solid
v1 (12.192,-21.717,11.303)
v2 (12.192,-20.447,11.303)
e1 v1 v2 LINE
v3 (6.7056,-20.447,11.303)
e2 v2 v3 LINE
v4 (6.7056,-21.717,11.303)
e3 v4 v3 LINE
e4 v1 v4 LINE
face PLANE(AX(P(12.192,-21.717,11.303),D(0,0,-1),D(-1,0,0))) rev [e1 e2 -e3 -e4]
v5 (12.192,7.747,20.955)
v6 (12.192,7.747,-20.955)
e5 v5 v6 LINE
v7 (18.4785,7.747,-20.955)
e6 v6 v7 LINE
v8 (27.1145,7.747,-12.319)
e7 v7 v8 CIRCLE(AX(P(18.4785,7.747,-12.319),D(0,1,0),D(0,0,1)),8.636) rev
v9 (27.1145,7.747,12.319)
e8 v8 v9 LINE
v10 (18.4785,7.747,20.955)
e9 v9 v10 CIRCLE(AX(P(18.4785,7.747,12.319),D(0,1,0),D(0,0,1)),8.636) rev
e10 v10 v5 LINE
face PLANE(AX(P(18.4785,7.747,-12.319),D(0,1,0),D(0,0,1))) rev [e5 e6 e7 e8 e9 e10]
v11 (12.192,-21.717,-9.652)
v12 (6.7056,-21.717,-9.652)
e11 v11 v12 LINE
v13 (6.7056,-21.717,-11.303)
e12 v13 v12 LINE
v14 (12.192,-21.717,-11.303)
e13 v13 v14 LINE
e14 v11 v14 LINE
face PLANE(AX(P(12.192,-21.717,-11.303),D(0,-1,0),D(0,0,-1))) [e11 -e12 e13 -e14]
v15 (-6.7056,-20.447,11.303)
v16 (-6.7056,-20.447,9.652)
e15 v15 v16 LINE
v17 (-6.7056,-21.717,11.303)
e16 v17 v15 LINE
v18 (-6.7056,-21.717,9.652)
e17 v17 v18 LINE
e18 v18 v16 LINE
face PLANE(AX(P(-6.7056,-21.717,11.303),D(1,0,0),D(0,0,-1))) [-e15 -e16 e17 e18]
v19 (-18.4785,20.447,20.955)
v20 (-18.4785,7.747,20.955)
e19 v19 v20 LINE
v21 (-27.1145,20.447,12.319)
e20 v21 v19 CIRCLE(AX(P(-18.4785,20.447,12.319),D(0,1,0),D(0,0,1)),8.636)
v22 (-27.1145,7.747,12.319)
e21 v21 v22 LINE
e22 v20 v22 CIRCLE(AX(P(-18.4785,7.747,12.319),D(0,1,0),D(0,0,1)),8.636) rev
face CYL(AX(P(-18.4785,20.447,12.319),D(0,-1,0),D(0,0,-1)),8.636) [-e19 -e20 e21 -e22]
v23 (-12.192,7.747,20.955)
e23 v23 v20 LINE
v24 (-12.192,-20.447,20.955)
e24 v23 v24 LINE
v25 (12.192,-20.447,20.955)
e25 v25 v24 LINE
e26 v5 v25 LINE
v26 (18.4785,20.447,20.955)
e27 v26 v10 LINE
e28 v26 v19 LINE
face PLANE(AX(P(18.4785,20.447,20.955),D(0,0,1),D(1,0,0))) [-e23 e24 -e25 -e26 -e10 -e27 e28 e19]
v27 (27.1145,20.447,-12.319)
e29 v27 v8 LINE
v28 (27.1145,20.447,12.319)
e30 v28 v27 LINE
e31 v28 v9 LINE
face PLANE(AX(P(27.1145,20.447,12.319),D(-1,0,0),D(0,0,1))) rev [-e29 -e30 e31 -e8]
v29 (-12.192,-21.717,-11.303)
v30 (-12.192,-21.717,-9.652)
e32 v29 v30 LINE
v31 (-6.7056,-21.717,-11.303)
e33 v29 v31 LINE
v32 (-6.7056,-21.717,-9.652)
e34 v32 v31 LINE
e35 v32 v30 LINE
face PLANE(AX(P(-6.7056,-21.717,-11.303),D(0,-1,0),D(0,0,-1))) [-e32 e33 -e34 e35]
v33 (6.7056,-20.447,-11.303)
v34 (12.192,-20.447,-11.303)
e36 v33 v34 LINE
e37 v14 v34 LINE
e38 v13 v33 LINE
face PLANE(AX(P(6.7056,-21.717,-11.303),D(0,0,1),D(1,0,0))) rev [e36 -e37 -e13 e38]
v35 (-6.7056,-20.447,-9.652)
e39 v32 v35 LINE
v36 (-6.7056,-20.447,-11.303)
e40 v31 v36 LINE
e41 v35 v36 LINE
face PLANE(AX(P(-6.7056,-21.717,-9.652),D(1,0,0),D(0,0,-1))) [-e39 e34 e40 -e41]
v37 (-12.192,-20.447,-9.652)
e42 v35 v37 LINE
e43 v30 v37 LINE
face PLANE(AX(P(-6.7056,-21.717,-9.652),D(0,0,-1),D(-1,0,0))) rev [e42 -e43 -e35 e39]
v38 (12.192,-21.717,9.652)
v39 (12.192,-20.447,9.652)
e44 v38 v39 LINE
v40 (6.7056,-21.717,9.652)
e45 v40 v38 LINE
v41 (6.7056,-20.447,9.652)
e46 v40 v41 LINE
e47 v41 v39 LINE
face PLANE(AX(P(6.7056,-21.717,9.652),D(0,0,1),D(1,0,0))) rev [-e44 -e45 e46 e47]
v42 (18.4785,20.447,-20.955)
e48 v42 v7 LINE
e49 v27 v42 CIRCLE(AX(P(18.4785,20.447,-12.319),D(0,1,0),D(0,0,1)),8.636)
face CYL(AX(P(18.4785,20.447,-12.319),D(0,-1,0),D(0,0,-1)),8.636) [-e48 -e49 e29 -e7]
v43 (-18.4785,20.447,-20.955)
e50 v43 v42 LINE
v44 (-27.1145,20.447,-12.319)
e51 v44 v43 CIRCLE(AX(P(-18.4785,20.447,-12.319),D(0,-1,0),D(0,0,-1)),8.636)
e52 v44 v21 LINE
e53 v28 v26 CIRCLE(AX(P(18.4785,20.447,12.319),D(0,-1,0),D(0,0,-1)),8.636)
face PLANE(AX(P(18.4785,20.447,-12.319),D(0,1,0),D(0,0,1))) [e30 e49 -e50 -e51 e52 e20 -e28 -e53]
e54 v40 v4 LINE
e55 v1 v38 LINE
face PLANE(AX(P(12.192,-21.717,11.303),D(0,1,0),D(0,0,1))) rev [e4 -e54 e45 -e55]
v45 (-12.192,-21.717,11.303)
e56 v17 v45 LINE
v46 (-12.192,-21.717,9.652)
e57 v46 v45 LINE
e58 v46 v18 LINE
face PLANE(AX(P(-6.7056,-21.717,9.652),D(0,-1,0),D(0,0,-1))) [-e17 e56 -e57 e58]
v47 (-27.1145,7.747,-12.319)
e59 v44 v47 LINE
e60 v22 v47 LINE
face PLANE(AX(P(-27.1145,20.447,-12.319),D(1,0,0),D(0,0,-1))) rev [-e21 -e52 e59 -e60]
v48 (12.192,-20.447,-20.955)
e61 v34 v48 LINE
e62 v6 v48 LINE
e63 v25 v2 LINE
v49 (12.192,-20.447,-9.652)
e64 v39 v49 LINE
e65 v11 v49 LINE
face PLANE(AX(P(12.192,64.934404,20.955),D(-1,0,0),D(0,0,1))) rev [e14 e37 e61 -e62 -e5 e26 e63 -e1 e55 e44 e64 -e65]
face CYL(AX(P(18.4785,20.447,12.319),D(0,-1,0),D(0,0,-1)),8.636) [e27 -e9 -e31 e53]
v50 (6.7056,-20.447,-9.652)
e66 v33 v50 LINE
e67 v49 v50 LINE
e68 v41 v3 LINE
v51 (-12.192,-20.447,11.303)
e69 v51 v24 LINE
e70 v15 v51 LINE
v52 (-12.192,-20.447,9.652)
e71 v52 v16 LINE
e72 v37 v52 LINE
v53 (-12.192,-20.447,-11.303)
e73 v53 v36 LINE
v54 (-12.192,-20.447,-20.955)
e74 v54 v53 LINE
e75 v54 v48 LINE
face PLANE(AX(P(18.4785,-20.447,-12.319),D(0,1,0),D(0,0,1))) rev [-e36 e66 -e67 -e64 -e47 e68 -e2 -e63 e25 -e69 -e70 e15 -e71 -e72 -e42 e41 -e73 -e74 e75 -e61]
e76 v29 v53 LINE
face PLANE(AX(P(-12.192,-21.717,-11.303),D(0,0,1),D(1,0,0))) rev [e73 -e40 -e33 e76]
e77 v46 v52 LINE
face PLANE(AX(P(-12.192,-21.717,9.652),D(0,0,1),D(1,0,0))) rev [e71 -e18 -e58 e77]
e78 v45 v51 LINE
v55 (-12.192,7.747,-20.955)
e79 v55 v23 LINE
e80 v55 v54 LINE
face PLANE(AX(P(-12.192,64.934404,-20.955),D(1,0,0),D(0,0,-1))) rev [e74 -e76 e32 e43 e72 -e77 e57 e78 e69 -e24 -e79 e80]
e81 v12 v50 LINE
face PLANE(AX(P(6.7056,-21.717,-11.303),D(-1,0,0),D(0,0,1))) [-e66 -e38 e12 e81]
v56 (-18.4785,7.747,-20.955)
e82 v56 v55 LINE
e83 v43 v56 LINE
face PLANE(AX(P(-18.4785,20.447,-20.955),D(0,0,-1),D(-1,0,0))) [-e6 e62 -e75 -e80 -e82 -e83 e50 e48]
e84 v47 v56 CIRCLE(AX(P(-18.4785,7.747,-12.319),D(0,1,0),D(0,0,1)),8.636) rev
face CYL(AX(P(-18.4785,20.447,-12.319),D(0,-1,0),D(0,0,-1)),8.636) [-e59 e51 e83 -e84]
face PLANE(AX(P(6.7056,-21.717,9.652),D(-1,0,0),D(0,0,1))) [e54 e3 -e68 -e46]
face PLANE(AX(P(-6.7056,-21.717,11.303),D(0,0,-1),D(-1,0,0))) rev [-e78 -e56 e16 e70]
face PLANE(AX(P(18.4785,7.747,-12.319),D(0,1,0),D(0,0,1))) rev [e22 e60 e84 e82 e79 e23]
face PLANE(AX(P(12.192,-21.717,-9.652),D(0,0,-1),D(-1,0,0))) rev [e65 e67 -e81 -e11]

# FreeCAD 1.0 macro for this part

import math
import FreeCAD as App
import Part
import Sketcher
from FreeCAD import Vector
Q = App.Units.Quantity

doc = App.newDocument("Part")
body = doc.addObject("PartDesign::Body", "Body")

# Sketch on XZ plane
sketch1 = body.newObject("Sketcher::SketchObject", "Sketch")
sketch1.AttachmentSupport = (doc.getObject("XZ_Plane"), [""])
sketch1.MapMode = "FlatFace"
sketch1.addGeometry(Part.LineSegment(Vector(18, -21, 0), Vector(-18, -21, 0)), False)
sketch1.addGeometry(Part.ArcOfCircle(Part.Circle(Vector(-18, -12, 0), Vector(0, 0, 1), 9), math.radians(-180), math.radians(-90)), False)
sketch1.addGeometry(Part.LineSegment(Vector(-27, -12, 0), Vector(-27, 12, 0)), False)
sketch1.addGeometry(Part.ArcOfCircle(Part.Circle(Vector(-18, 12, 0), Vector(0, 0, 1), 9), math.radians(90), math.radians(180)), False)
sketch1.addGeometry(Part.LineSegment(Vector(-18, 21, 0), Vector(18, 21, 0)), False)
sketch1.addGeometry(Part.ArcOfCircle(Part.Circle(Vector(18, 12, 0), Vector(0, 0, 1), 9), math.radians(0), math.radians(90)), False)
sketch1.addGeometry(Part.LineSegment(Vector(27, 12, 0), Vector(27, -12, 0)), False)
sketch1.addGeometry(Part.ArcOfCircle(Part.Circle(Vector(18, -12, 0), Vector(0, 0, 1), 9), math.radians(-90), math.radians(0)), False)
sketch1.addConstraint(Sketcher.Constraint("Tangent", 0, 2, 1, 2))
sketch1.addConstraint(Sketcher.Constraint("Tangent", 1, 1, 2, 1))
sketch1.addConstraint(Sketcher.Constraint("Tangent", 2, 2, 3, 2))
sketch1.addConstraint(Sketcher.Constraint("Tangent", 3, 1, 4, 1))
sketch1.addConstraint(Sketcher.Constraint("Tangent", 4, 2, 5, 2))
sketch1.addConstraint(Sketcher.Constraint("Tangent", 5, 1, 6, 1))
sketch1.addConstraint(Sketcher.Constraint("Tangent", 6, 2, 7, 2))
sketch1.addConstraint(Sketcher.Constraint("Tangent", 7, 1, 0, 1))
sketch1.addConstraint(Sketcher.Constraint("Horizontal", 0))
sketch1.addConstraint(Sketcher.Constraint("Vertical", 2))
sketch1.addConstraint(Sketcher.Constraint("Horizontal", 4))
sketch1.addConstraint(Sketcher.Constraint("Vertical", 6))
sketch1.addConstraint(Sketcher.Constraint("Equal", 1, 3))
sketch1.addConstraint(Sketcher.Constraint("Equal", 3, 5))
sketch1.addConstraint(Sketcher.Constraint("Equal", 5, 7))
sketch1.addConstraint(Sketcher.Constraint("Symmetric", 1, 3, 5, 3, -1, 1))
sketch1.addConstraint(Sketcher.Constraint("Radius", 1, Q("0.34 in")))
sketch1.addConstraint(Sketcher.Constraint("DistanceY", 2, 1, 2, 2, Q("0.97 in")))
sketch1.addConstraint(Sketcher.Constraint("DistanceX", 0, 2, 0, 1, Q("1.455 in")))
pad1 = body.newObject("PartDesign::Pad", "Pad")
pad1.Profile = sketch1
pad1.Length = Q("1.61 in")
pad1.Midplane = True

# Sketch on XZ plane
sketch2 = body.newObject("Sketcher::SketchObject", "Sketch001")
sketch2.AttachmentSupport = (doc.getObject("XZ_Plane"), [""])
sketch2.MapMode = "FlatFace"
sketch2.AttachmentOffset = App.Placement(Vector(0, 0, 0.805 * 25.4), App.Rotation())
sketch2.addGeometry(Part.LineSegment(Vector(12, 21, 0), Vector(12, -21, 0)), False)
sketch2.addGeometry(Part.LineSegment(Vector(12, -21, 0), Vector(18, -21, 0)), False)
sketch2.addGeometry(Part.ArcOfCircle(Part.Circle(Vector(18, -12, 0), Vector(0, 0, 1), 9), math.radians(-90), math.radians(0)), False)
sketch2.addGeometry(Part.LineSegment(Vector(27, -12, 0), Vector(27, 12, 0)), False)
sketch2.addGeometry(Part.ArcOfCircle(Part.Circle(Vector(18, 12, 0), Vector(0, 0, 1), 9), math.radians(0), math.radians(90)), False)
sketch2.addGeometry(Part.LineSegment(Vector(18, 21, 0), Vector(12, 21, 0)), False)
sketch2.addGeometry(Part.LineSegment(Vector(-18, -21, 0), Vector(-12, -21, 0)), False)
sketch2.addGeometry(Part.LineSegment(Vector(-12, -21, 0), Vector(-12, 21, 0)), False)
sketch2.addGeometry(Part.LineSegment(Vector(-12, 21, 0), Vector(-18, 21, 0)), False)
sketch2.addGeometry(Part.ArcOfCircle(Part.Circle(Vector(-18, 12, 0), Vector(0, 0, 1), 9), math.radians(90), math.radians(180)), False)
sketch2.addGeometry(Part.LineSegment(Vector(-27, 12, 0), Vector(-27, -12, 0)), False)
sketch2.addGeometry(Part.ArcOfCircle(Part.Circle(Vector(-18, -12, 0), Vector(0, 0, 1), 9), math.radians(-180), math.radians(-90)), False)
sketch2.addConstraint(Sketcher.Constraint("Coincident", 0, 2, 1, 1))
sketch2.addConstraint(Sketcher.Constraint("Tangent", 1, 2, 2, 1))
sketch2.addConstraint(Sketcher.Constraint("Tangent", 2, 2, 3, 1))
sketch2.addConstraint(Sketcher.Constraint("Tangent", 3, 2, 4, 1))
sketch2.addConstraint(Sketcher.Constraint("Tangent", 4, 2, 5, 1))
sketch2.addConstraint(Sketcher.Constraint("Coincident", 5, 2, 0, 1))
sketch2.addConstraint(Sketcher.Constraint("Coincident", 6, 2, 7, 1))
sketch2.addConstraint(Sketcher.Constraint("Coincident", 7, 2, 8, 1))
sketch2.addConstraint(Sketcher.Constraint("Tangent", 8, 2, 9, 1))
sketch2.addConstraint(Sketcher.Constraint("Tangent", 9, 2, 10, 1))
sketch2.addConstraint(Sketcher.Constraint("Tangent", 10, 2, 11, 1))
sketch2.addConstraint(Sketcher.Constraint("Tangent", 11, 2, 6, 1))
sketch2.addConstraint(Sketcher.Constraint("Vertical", 0))
sketch2.addConstraint(Sketcher.Constraint("Horizontal", 1))
sketch2.addConstraint(Sketcher.Constraint("Vertical", 3))
sketch2.addConstraint(Sketcher.Constraint("Horizontal", 5))
sketch2.addConstraint(Sketcher.Constraint("Horizontal", 6))
sketch2.addConstraint(Sketcher.Constraint("Vertical", 7))
sketch2.addConstraint(Sketcher.Constraint("Horizontal", 8))
sketch2.addConstraint(Sketcher.Constraint("Vertical", 10))
sketch2.addConstraint(Sketcher.Constraint("Equal", 2, 4))
sketch2.addConstraint(Sketcher.Constraint("Equal", 4, 9))
sketch2.addConstraint(Sketcher.Constraint("Equal", 9, 11))
sketch2.addConstraint(Sketcher.Constraint("Symmetric", 2, 3, 9, 3, -1, 1))
sketch2.addConstraint(Sketcher.Constraint("Symmetric", 5, 2, 6, 2, -1, 1))
sketch2.addConstraint(Sketcher.Constraint("Horizontal", 4, 3, 9, 3))
sketch2.addConstraint(Sketcher.Constraint("Radius", 2, Q("0.34 in")))
sketch2.addConstraint(Sketcher.Constraint("DistanceY", 0, 2, 0, 1, Q("1.65 in")))
sketch2.addConstraint(Sketcher.Constraint("DistanceX", -1, 1, 0, 2, Q("0.48 in")))
sketch2.addConstraint(Sketcher.Constraint("DistanceX", 1, 1, 1, 2, Q("0.2475 in")))
pocket1 = body.newObject("PartDesign::Pocket", "Pocket")
pocket1.Profile = sketch2
pocket1.Length = Q("1.11 in")

# Sketch on XZ plane
sketch3 = body.newObject("Sketcher::SketchObject", "Sketch002")
sketch3.AttachmentSupport = (doc.getObject("XZ_Plane"), [""])
sketch3.MapMode = "FlatFace"
sketch3.AttachmentOffset = App.Placement(Vector(0, 0, 0.805 * 25.4), App.Rotation())
sketch3.addGeometry(Part.LineSegment(Vector(6.7, -9.7, 0), Vector(6.7, -11.3, 0)), False)
sketch3.addGeometry(Part.LineSegment(Vector(6.7, -11.3, 0), Vector(12.2, -11.3, 0)), False)
sketch3.addGeometry(Part.LineSegment(Vector(12.2, -11.3, 0), Vector(12.2, -9.7, 0)), False)
sketch3.addGeometry(Part.LineSegment(Vector(12.2, -9.7, 0), Vector(6.7, -9.7, 0)), False)
sketch3.addGeometry(Part.LineSegment(Vector(6.7, 11.3, 0), Vector(6.7, 9.7, 0)), False)
sketch3.addGeometry(Part.LineSegment(Vector(6.7, 9.7, 0), Vector(12.2, 9.7, 0)), False)
sketch3.addGeometry(Part.LineSegment(Vector(12.2, 9.7, 0), Vector(12.2, 11.3, 0)), False)
sketch3.addGeometry(Part.LineSegment(Vector(12.2, 11.3, 0), Vector(6.7, 11.3, 0)), False)
sketch3.addGeometry(Part.LineSegment(Vector(-12.2, 11.3, 0), Vector(-12.2, 9.7, 0)), False)
sketch3.addGeometry(Part.LineSegment(Vector(-12.2, 9.7, 0), Vector(-6.7, 9.7, 0)), False)
sketch3.addGeometry(Part.LineSegment(Vector(-6.7, 9.7, 0), Vector(-6.7, 11.3, 0)), False)
sketch3.addGeometry(Part.LineSegment(Vector(-6.7, 11.3, 0), Vector(-12.2, 11.3, 0)), False)
sketch3.addGeometry(Part.LineSegment(Vector(-12.2, -9.7, 0), Vector(-12.2, -11.3, 0)), False)
sketch3.addGeometry(Part.LineSegment(Vector(-12.2, -11.3, 0), Vector(-6.7, -11.3, 0)), False)
sketch3.addGeometry(Part.LineSegment(Vector(-6.7, -11.3, 0), Vector(-6.7, -9.7, 0)), False)
sketch3.addGeometry(Part.LineSegment(Vector(-6.7, -9.7, 0), Vector(-12.2, -9.7, 0)), False)
sketch3.addConstraint(Sketcher.Constraint("Coincident", 0, 2, 1, 1))
sketch3.addConstraint(Sketcher.Constraint("Coincident", 1, 2, 2, 1))
sketch3.addConstraint(Sketcher.Constraint("Coincident", 2, 2, 3, 1))
sketch3.addConstraint(Sketcher.Constraint("Coincident", 3, 2, 0, 1))
sketch3.addConstraint(Sketcher.Constraint("Coincident", 4, 2, 5, 1))
sketch3.addConstraint(Sketcher.Constraint("Coincident", 5, 2, 6, 1))
sketch3.addConstraint(Sketcher.Constraint("Coincident", 6, 2, 7, 1))
sketch3.addConstraint(Sketcher.Constraint("Coincident", 7, 2, 4, 1))
sketch3.addConstraint(Sketcher.Constraint("Coincident", 8, 2, 9, 1))
sketch3.addConstraint(Sketcher.Constraint("Coincident", 9, 2, 10, 1))
sketch3.addConstraint(Sketcher.Constraint("Coincident", 10, 2, 11, 1))
sketch3.addConstraint(Sketcher.Constraint("Coincident", 11, 2, 8, 1))
sketch3.addConstraint(Sketcher.Constraint("Coincident", 12, 2, 13, 1))
sketch3.addConstraint(Sketcher.Constraint("Coincident", 13, 2, 14, 1))
sketch3.addConstraint(Sketcher.Constraint("Coincident", 14, 2, 15, 1))
sketch3.addConstraint(Sketcher.Constraint("Coincident", 15, 2, 12, 1))
sketch3.addConstraint(Sketcher.Constraint("Vertical", 0))
sketch3.addConstraint(Sketcher.Constraint("Horizontal", 1))
sketch3.addConstraint(Sketcher.Constraint("Vertical", 2))
sketch3.addConstraint(Sketcher.Constraint("Horizontal", 3))
sketch3.addConstraint(Sketcher.Constraint("Vertical", 4))
sketch3.addConstraint(Sketcher.Constraint("Horizontal", 5))
sketch3.addConstraint(Sketcher.Constraint("Vertical", 6))
sketch3.addConstraint(Sketcher.Constraint("Horizontal", 7))
sketch3.addConstraint(Sketcher.Constraint("Vertical", 8))
sketch3.addConstraint(Sketcher.Constraint("Horizontal", 9))
sketch3.addConstraint(Sketcher.Constraint("Vertical", 10))
sketch3.addConstraint(Sketcher.Constraint("Horizontal", 11))
sketch3.addConstraint(Sketcher.Constraint("Vertical", 12))
sketch3.addConstraint(Sketcher.Constraint("Horizontal", 13))
sketch3.addConstraint(Sketcher.Constraint("Vertical", 14))
sketch3.addConstraint(Sketcher.Constraint("Horizontal", 15))
sketch3.addConstraint(Sketcher.Constraint("Symmetric", 2, 2, 8, 2, -1, 1))
sketch3.addConstraint(Sketcher.Constraint("Symmetric", 0, 2, 10, 2, -1, 1))
sketch3.addConstraint(Sketcher.Constraint("Symmetric", 6, 2, 12, 2, -1, 1))
sketch3.addConstraint(Sketcher.Constraint("Symmetric", 4, 2, 14, 2, -1, 1))
sketch3.addConstraint(Sketcher.Constraint("Symmetric", 5, 2, 8, 2, -2))
sketch3.addConstraint(Sketcher.Constraint("Symmetric", 7, 2, 10, 2, -2))
sketch3.addConstraint(Sketcher.Constraint("DistanceX", 1, 1, 1, 2, Q("0.216 in")))
sketch3.addConstraint(Sketcher.Constraint("DistanceY", 0, 2, 0, 1, Q("0.065 in")))
sketch3.addConstraint(Sketcher.Constraint("DistanceX", -1, 1, 1, 2, Q("0.48 in")))
sketch3.addConstraint(Sketcher.Constraint("DistanceY", 2, 2, -1, 1, Q("0.38 in")))
pad2 = body.newObject("PartDesign::Pad", "Pad001")
pad2.Profile = sketch3
pad2.Length = Q("0.05 in")

doc.recompute()
